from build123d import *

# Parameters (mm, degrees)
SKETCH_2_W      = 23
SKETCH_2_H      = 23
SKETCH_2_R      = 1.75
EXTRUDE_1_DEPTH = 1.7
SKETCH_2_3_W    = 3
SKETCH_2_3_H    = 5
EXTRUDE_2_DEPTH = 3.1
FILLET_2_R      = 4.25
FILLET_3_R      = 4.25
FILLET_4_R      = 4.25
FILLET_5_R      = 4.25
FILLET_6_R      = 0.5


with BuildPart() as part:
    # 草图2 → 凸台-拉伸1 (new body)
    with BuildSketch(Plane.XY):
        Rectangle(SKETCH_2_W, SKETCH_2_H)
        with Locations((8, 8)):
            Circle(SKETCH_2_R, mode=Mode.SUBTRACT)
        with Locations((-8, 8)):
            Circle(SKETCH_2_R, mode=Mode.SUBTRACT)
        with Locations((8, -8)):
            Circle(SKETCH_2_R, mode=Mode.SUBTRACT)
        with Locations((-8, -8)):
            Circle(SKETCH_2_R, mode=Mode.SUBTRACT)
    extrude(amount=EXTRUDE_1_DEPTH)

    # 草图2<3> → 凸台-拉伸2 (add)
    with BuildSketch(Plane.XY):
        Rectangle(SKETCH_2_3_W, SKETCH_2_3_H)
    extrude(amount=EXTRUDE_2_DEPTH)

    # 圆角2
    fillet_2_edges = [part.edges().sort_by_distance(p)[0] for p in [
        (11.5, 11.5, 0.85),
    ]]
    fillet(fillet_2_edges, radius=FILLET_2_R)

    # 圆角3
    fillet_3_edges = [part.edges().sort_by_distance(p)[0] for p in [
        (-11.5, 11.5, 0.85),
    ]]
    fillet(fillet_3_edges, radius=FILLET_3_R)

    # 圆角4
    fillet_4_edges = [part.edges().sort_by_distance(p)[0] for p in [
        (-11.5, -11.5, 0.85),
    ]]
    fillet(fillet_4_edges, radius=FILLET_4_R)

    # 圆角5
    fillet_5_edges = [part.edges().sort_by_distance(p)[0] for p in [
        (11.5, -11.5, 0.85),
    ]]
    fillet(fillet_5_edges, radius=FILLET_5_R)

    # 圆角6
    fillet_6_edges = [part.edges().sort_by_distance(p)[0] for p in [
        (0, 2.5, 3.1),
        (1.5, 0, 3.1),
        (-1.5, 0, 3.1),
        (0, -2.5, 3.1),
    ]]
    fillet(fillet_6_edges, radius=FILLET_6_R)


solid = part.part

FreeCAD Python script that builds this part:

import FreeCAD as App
import Part
import Sketcher
from FreeCAD import Vector


def edges_at(feature, points):
    """Names of the edges that pass closest to the given points."""
    edges = feature.Shape.Edges
    near = lambda p: min(range(len(edges)), key=lambda i: edges[i].distToShape(Part.Vertex(*p))[0])
    return sorted({f"Edge{near(p) + 1}" for p in points})

doc = App.newDocument("Part")
body = doc.addObject("PartDesign::Body", "Body")

# Sketch on XY plane
sketch1 = body.newObject("Sketcher::SketchObject", "Sketch")
sketch1.AttachmentSupport = (doc.getObject("XY_Plane"), [""])
sketch1.MapMode = "FlatFace"
sketch1.addGeometry(Part.LineSegment(Vector(-11.5, 11.5, 0), Vector(-11.5, -11.5, 0)), False)
sketch1.addGeometry(Part.LineSegment(Vector(-11.5, -11.5, 0), Vector(11.5, -11.5, 0)), False)
sketch1.addGeometry(Part.LineSegment(Vector(11.5, -11.5, 0), Vector(11.5, 11.5, 0)), False)
sketch1.addGeometry(Part.LineSegment(Vector(11.5, 11.5, 0), Vector(-11.5, 11.5, 0)), False)
sketch1.addGeometry(Part.Circle(Vector(-8, -8, 0), Vector(0, 0, 1), 1.75), False)
sketch1.addGeometry(Part.Circle(Vector(8, -8, 0), Vector(0, 0, 1), 1.75), False)
sketch1.addGeometry(Part.Circle(Vector(-8, 8, 0), Vector(0, 0, 1), 1.75), False)
sketch1.addGeometry(Part.Circle(Vector(8, 8, 0), Vector(0, 0, 1), 1.75), False)
sketch1.addConstraint(Sketcher.Constraint("Coincident", 0, 2, 1, 1))
sketch1.addConstraint(Sketcher.Constraint("Coincident", 1, 2, 2, 1))
sketch1.addConstraint(Sketcher.Constraint("Coincident", 2, 2, 3, 1))
sketch1.addConstraint(Sketcher.Constraint("Coincident", 3, 2, 0, 1))
sketch1.addConstraint(Sketcher.Constraint("Vertical", 0))
sketch1.addConstraint(Sketcher.Constraint("Horizontal", 1))
sketch1.addConstraint(Sketcher.Constraint("Vertical", 2))
sketch1.addConstraint(Sketcher.Constraint("Horizontal", 3))
sketch1.addConstraint(Sketcher.Constraint("Equal", 4, 5))
sketch1.addConstraint(Sketcher.Constraint("Equal", 5, 6))
sketch1.addConstraint(Sketcher.Constraint("Equal", 6, 7))
sketch1.addConstraint(Sketcher.Constraint("Symmetric", 5, 3, 6, 3, -1, 1))
sketch1.addConstraint(Sketcher.Constraint("Symmetric", 4, 3, 7, 3, -1, 1))
sketch1.addConstraint(Sketcher.Constraint("Symmetric", 0, 2, 2, 2, -1, 1))
sketch1.addConstraint(Sketcher.Constraint("Symmetric", 4, 3, 5, 3, -2))
sketch1.addConstraint(Sketcher.Constraint("Equal", 3, 0))
sketch1.addConstraint(Sketcher.Constraint("Diameter", 4, 3.5))
sketch1.addConstraint(Sketcher.Constraint("DistanceX", 1, 1, 1, 2, 23.0))
sketch1.addConstraint(Sketcher.Constraint("DistanceX", 4, 3, -1, 1, 8.0))
sketch1.addConstraint(Sketcher.Constraint("DistanceY", 4, 3, -1, 1, 8.0))
pad1 = body.newObject("PartDesign::Pad", "Pad")
pad1.Profile = sketch1
pad1.Length = 1.7

# Sketch on XY plane
sketch2 = body.newObject("Sketcher::SketchObject", "Sketch001")
sketch2.AttachmentSupport = (doc.getObject("XY_Plane"), [""])
sketch2.MapMode = "FlatFace"
sketch2.addGeometry(Part.LineSegment(Vector(-1.5, 2.5, 0), Vector(-1.5, -2.5, 0)), False)
sketch2.addGeometry(Part.LineSegment(Vector(-1.5, -2.5, 0), Vector(1.5, -2.5, 0)), False)
sketch2.addGeometry(Part.LineSegment(Vector(1.5, -2.5, 0), Vector(1.5, 2.5, 0)), False)
sketch2.addGeometry(Part.LineSegment(Vector(1.5, 2.5, 0), Vector(-1.5, 2.5, 0)), False)
sketch2.addConstraint(Sketcher.Constraint("Coincident", 0, 2, 1, 1))
sketch2.addConstraint(Sketcher.Constraint("Coincident", 1, 2, 2, 1))
sketch2.addConstraint(Sketcher.Constraint("Coincident", 2, 2, 3, 1))
sketch2.addConstraint(Sketcher.Constraint("Coincident", 3, 2, 0, 1))
sketch2.addConstraint(Sketcher.Constraint("Vertical", 0))
sketch2.addConstraint(Sketcher.Constraint("Horizontal", 1))
sketch2.addConstraint(Sketcher.Constraint("Vertical", 2))
sketch2.addConstraint(Sketcher.Constraint("Horizontal", 3))
sketch2.addConstraint(Sketcher.Constraint("Symmetric", 0, 2, 2, 2, -1, 1))
sketch2.addConstraint(Sketcher.Constraint("DistanceX", 1, 1, 1, 2, 3.0))
sketch2.addConstraint(Sketcher.Constraint("DistanceY", 0, 2, 0, 1, 5.0))
pad2 = body.newObject("PartDesign::Pad", "Pad001")
pad2.Profile = sketch2
pad2.Length = 3.1
doc.recompute()

fillet = body.newObject("PartDesign::Fillet", "Fillet")
fillet.Base = (pad2, edges_at(pad2, [(11.5, 11.5, 0.85)]))
fillet.Radius = 4.25
doc.recompute()

fillet2 = body.newObject("PartDesign::Fillet", "Fillet001")
fillet2.Base = (fillet, edges_at(fillet, [(-11.5, 11.5, 0.85)]))
fillet2.Radius = 4.25
doc.recompute()

fillet3 = body.newObject("PartDesign::Fillet", "Fillet002")
fillet3.Base = (fillet2, edges_at(fillet2, [(-11.5, -11.5, 0.85)]))
fillet3.Radius = 4.25
doc.recompute()

fillet4 = body.newObject("PartDesign::Fillet", "Fillet003")
fillet4.Base = (fillet3, edges_at(fillet3, [(11.5, -11.5, 0.85)]))
fillet4.Radius = 4.25
doc.recompute()

fillet5 = body.newObject("PartDesign::Fillet", "Fillet004")
fillet5.Base = (fillet4, edges_at(fillet4, [
    (0, 2.5, 3.1),
    (1.5, 0, 3.1),
    (-1.5, 0, 3.1),
    (0, -2.5, 3.1),
]))
fillet5.Radius = 0.5

doc.recompute()
